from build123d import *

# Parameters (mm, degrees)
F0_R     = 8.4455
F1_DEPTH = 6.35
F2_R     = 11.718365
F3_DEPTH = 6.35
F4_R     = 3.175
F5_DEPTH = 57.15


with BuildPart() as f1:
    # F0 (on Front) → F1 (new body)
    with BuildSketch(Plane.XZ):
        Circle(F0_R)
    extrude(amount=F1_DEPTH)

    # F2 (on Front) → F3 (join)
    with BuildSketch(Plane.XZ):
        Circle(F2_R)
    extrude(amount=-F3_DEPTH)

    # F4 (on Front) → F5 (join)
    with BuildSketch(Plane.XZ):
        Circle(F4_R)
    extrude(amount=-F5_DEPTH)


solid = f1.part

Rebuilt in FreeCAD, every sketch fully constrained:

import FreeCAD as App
import Part
import Sketcher

V = App.Vector
Q = App.Units.Quantity

doc = App.newDocument("Part")
body = doc.addObject("PartDesign::Body", "Body")

sketch1 = doc.addObject("Sketcher::SketchObject", "Sketch")
body.addObject(sketch1)
sketch1.AttachmentSupport = (doc.XZ_Plane, [""])
sketch1.MapMode = "FlatFace"
sketch1.addGeometry(Part.Circle(V(0, 0, 0), V(0, 0, 1), 8), False)
sketch1.addConstraint([
    Sketcher.Constraint("Coincident", 0, 3, -1, 1),
    Sketcher.Constraint("Diameter", 0, Q("0.665 in")),
])
pad1 = doc.addObject("PartDesign::Pad", "Pad")
body.addObject(pad1)
pad1.Profile = sketch1
pad1.Length = Q("0.25 in")

sketch2 = doc.addObject("Sketcher::SketchObject", "Sketch001")
body.addObject(sketch2)
sketch2.AttachmentSupport = (doc.XZ_Plane, [""])
sketch2.MapMode = "FlatFace"
sketch2.addGeometry(Part.Circle(V(0, 0, 0), V(0, 0, 1), 12), False)
sketch2.addConstraint([
    Sketcher.Constraint("Coincident", 0, 3, -1, 1),
    Sketcher.Constraint("Diameter", 0, 23.43673),
])
pad2 = doc.addObject("PartDesign::Pad", "Pad001")
body.addObject(pad2)
pad2.Profile = sketch2
pad2.Length = Q("0.25 in")
pad2.Reversed = True

sketch3 = doc.addObject("Sketcher::SketchObject", "Sketch002")
body.addObject(sketch3)
sketch3.AttachmentSupport = (doc.XZ_Plane, [""])
sketch3.MapMode = "FlatFace"
sketch3.addGeometry(Part.Circle(V(0, 0, 0), V(0, 0, 1), 3.2), False)
sketch3.addConstraint([
    Sketcher.Constraint("Coincident", 0, 3, -1, 1),
    Sketcher.Constraint("Diameter", 0, Q("0.25 in")),
])
pad3 = doc.addObject("PartDesign::Pad", "Pad002")
body.addObject(pad3)
pad3.Profile = sketch3
pad3.Length = Q("2.25 in")
pad3.Reversed = True

doc.recompute()
